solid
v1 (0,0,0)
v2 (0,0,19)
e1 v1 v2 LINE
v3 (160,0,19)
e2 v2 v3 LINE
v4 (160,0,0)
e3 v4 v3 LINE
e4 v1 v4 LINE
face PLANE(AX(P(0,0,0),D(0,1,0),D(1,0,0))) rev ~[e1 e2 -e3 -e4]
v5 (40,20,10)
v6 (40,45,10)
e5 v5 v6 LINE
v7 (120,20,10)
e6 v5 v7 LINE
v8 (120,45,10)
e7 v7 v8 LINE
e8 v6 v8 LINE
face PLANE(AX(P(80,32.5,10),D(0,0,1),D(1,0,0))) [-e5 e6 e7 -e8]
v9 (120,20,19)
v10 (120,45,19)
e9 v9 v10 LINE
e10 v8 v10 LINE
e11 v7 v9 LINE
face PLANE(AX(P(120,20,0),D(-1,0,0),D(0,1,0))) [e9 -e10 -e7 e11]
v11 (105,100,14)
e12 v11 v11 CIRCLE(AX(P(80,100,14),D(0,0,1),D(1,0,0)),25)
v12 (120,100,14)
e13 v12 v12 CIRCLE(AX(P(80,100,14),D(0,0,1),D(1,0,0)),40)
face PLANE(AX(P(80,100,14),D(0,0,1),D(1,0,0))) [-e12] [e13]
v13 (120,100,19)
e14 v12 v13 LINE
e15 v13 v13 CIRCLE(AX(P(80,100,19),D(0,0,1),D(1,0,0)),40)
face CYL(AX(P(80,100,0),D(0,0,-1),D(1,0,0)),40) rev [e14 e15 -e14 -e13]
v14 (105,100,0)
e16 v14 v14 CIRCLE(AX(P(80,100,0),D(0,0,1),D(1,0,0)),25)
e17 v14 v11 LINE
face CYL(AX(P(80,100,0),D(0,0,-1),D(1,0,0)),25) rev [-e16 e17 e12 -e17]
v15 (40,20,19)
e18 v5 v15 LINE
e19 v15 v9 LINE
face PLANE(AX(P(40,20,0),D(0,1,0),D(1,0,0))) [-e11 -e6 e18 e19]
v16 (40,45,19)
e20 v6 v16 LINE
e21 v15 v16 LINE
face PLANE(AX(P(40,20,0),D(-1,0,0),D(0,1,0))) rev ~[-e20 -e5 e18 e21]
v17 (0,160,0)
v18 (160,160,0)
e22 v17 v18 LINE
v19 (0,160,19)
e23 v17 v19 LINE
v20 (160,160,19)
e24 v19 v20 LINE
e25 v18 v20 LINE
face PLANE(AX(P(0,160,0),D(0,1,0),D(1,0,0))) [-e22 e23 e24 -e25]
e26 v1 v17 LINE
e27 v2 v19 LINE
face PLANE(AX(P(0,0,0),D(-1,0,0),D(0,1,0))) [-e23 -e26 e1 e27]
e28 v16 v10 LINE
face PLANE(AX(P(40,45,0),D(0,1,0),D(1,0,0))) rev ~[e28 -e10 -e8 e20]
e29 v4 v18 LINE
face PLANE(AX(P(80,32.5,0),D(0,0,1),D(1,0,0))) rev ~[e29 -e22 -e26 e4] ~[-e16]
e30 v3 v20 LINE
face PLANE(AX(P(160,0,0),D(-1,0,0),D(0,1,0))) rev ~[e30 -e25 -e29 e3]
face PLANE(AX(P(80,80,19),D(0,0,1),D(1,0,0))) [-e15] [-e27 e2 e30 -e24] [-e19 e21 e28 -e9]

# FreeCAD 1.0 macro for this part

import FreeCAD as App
import Part
import Sketcher
Q = App.Units.Quantity

doc = App.newDocument("Part")
body = doc.addObject("PartDesign::Body", "Body")

# Sketch on XY plane
sketch1 = body.newObject("Sketcher::SketchObject", "Sketch")
sketch1.AttachmentSupport = (doc.getObject("XY_Plane"), [""])
sketch1.MapMode = "FlatFace"
sketch1.addGeometry([
    Part.LineSegment(App.Vector(0, 160, 0), App.Vector(0, 0, 0)),  # 0
    Part.LineSegment(App.Vector(0, 0, 0), App.Vector(160, 0, 0)),  # 1
    Part.LineSegment(App.Vector(160, 0, 0), App.Vector(160, 160, 0)),  # 2
    Part.LineSegment(App.Vector(160, 160, 0), App.Vector(0, 160, 0)),  # 3
    Part.LineSegment(App.Vector(120, 20, 0), App.Vector(40, 20, 0)),  # 4
    Part.LineSegment(App.Vector(40, 20, 0), App.Vector(40, 45, 0)),  # 5
    Part.LineSegment(App.Vector(40, 45, 0), App.Vector(120, 45, 0)),  # 6
    Part.LineSegment(App.Vector(120, 45, 0), App.Vector(120, 20, 0)),  # 7
    Part.Circle(App.Vector(80, 100, 0), App.Vector(0, 0, 1), 40),  # 8
], False)
sketch1.addConstraint([
    Sketcher.Constraint("Coincident", 0, 2, 1, 1),
    Sketcher.Constraint("Coincident", 1, 2, 2, 1),
    Sketcher.Constraint("Coincident", 2, 2, 3, 1),
    Sketcher.Constraint("Coincident", 3, 2, 0, 1),
    Sketcher.Constraint("Coincident", 4, 2, 5, 1),
    Sketcher.Constraint("Coincident", 5, 2, 6, 1),
    Sketcher.Constraint("Coincident", 6, 2, 7, 1),
    Sketcher.Constraint("Coincident", 7, 2, 4, 1),
    Sketcher.Constraint("Vertical", 0),
    Sketcher.Constraint("Horizontal", 1),
    Sketcher.Constraint("Vertical", 2),
    Sketcher.Constraint("Horizontal", 3),
    Sketcher.Constraint("Horizontal", 4),
    Sketcher.Constraint("Vertical", 5),
    Sketcher.Constraint("Horizontal", 6),
    Sketcher.Constraint("Vertical", 7),
    Sketcher.Constraint("Coincident", 0, 2, -1, 1),
    Sketcher.Constraint("Equal", 3, 0),
    Sketcher.Constraint("Diameter", 8, Q("80 mm")),
    Sketcher.Constraint("DistanceX", 1, 1, 1, 2, Q("160 mm")),
    Sketcher.Constraint("DistanceX", 4, 2, 4, 1, Q("80 mm")),
    Sketcher.Constraint("DistanceY", 5, 1, 5, 2, Q("25 mm")),
    Sketcher.Constraint("DistanceX", -1, 1, 8, 3, Q("80 mm")),
    Sketcher.Constraint("DistanceY", -1, 1, 8, 3, Q("100 mm")),
    Sketcher.Constraint("DistanceX", -1, 1, 4, 2, Q("40 mm")),
    Sketcher.Constraint("DistanceY", -1, 1, 4, 2, Q("20 mm")),
])
pad1 = body.newObject("PartDesign::Pad", "Pad")
pad1.Profile = sketch1
pad1.Length = 19

# Sketch on XY plane
sketch2 = body.newObject("Sketcher::SketchObject", "Sketch001")
sketch2.AttachmentSupport = (doc.getObject("XY_Plane"), [""])
sketch2.MapMode = "FlatFace"
sketch2.addGeometry([
    Part.Circle(App.Vector(80, 100, 0), App.Vector(0, 0, 1), 40),
    Part.Circle(App.Vector(80, 100, 0), App.Vector(0, 0, 1), 25),
], False)
sketch2.addConstraint([
    Sketcher.Constraint("Coincident", 1, 3, 0, 3),
    Sketcher.Constraint("Diameter", 0, Q("80 mm")),
    Sketcher.Constraint("Diameter", 1, Q("50 mm")),
    Sketcher.Constraint("DistanceX", -1, 1, 0, 3, Q("80 mm")),
    Sketcher.Constraint("DistanceY", -1, 1, 0, 3, Q("100 mm")),
])
pad2 = body.newObject("PartDesign::Pad", "Pad001")
pad2.Profile = sketch2
pad2.Length = 14

# Sketch on XY plane
sketch3 = body.newObject("Sketcher::SketchObject", "Sketch002")
sketch3.AttachmentSupport = (doc.getObject("XY_Plane"), [""])
sketch3.MapMode = "FlatFace"
sketch3.addGeometry([
    Part.LineSegment(App.Vector(40, 45, 0), App.Vector(40, 20, 0)),
    Part.LineSegment(App.Vector(40, 20, 0), App.Vector(120, 20, 0)),
    Part.LineSegment(App.Vector(120, 20, 0), App.Vector(120, 45, 0)),
    Part.LineSegment(App.Vector(120, 45, 0), App.Vector(40, 45, 0)),
], False)
sketch3.addConstraint([
    Sketcher.Constraint("Coincident", 0, 2, 1, 1),
    Sketcher.Constraint("Coincident", 1, 2, 2, 1),
    Sketcher.Constraint("Coincident", 2, 2, 3, 1),
    Sketcher.Constraint("Coincident", 3, 2, 0, 1),
    Sketcher.Constraint("Vertical", 0),
    Sketcher.Constraint("Horizontal", 1),
    Sketcher.Constraint("Vertical", 2),
    Sketcher.Constraint("Horizontal", 3),
    Sketcher.Constraint("DistanceX", 1, 1, 1, 2, Q("80 mm")),
    Sketcher.Constraint("DistanceY", 0, 2, 0, 1, Q("25 mm")),
    Sketcher.Constraint("DistanceX", -1, 1, 0, 2, Q("40 mm")),
    Sketcher.Constraint("DistanceY", -1, 1, 0, 2, Q("20 mm")),
])
pad3 = body.newObject("PartDesign::Pad", "Pad002")
pad3.Profile = sketch3
pad3.Length = 10

doc.recompute()
